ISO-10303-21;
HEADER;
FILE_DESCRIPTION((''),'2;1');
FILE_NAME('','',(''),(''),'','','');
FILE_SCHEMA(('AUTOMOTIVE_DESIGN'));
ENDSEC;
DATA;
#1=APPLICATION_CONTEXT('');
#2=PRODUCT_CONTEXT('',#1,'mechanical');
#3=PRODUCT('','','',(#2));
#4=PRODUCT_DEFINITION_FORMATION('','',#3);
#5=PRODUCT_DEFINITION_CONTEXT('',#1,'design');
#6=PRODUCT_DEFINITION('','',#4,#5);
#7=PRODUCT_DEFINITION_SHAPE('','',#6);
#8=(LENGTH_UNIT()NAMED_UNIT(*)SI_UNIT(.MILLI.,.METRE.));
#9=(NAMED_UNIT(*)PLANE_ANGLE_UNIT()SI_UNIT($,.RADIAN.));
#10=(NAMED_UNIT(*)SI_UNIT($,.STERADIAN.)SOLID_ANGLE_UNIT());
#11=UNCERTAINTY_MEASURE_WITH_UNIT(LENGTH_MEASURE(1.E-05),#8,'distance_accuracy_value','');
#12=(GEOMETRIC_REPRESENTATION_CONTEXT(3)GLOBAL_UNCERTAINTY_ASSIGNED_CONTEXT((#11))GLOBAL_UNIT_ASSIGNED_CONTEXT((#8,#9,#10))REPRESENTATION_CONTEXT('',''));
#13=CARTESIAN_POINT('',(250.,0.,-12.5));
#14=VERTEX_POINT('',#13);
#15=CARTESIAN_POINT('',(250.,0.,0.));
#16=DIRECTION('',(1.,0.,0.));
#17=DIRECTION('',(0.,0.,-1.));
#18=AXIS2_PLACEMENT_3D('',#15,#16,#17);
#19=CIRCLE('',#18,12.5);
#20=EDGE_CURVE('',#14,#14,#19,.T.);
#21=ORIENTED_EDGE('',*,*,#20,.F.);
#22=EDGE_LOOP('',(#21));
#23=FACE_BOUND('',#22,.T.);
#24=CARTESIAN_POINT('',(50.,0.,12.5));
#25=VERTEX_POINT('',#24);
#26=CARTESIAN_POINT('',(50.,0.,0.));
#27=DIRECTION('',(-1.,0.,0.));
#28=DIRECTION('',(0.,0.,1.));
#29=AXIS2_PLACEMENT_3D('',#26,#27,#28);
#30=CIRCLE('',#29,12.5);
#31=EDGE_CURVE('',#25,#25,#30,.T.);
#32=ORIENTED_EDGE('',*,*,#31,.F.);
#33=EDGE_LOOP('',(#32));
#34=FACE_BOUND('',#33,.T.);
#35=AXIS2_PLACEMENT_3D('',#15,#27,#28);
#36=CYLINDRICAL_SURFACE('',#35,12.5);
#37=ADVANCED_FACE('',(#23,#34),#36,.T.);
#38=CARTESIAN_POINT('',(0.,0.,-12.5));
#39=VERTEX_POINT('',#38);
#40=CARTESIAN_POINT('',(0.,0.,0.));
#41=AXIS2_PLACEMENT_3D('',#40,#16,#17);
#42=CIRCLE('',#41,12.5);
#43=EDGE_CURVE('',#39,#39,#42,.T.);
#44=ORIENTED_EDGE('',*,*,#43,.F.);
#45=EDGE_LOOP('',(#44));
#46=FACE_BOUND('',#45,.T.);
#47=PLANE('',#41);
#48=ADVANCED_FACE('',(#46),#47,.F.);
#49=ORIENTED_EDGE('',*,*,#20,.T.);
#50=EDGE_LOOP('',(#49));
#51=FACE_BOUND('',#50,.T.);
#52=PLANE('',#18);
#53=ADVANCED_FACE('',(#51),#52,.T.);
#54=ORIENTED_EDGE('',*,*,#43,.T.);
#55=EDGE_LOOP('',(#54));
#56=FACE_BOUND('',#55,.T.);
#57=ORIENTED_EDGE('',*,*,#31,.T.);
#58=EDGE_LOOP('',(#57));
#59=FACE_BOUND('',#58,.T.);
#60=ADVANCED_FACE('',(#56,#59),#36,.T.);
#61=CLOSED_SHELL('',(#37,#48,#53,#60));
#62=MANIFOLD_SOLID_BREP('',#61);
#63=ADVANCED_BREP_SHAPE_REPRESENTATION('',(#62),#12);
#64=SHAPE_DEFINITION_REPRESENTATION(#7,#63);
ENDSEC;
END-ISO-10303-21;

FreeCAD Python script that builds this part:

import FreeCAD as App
import Part
import Sketcher

V = App.Vector

doc = App.newDocument("Part")
params = doc.addObject("Spreadsheet::Sheet", "Params")
for row, (alias, value) in enumerate([
    ("sketch1_diameter", "25 mm"),
    ("pad1_length", "250 mm"),
], start=1):
    params.set(f"A{row}", alias)
    params.set(f"B{row}", "=" + value)
    params.setAlias(f"B{row}", alias)

body = doc.addObject("PartDesign::Body", "Body")

sketch1 = body.newObject("Sketcher::SketchObject", "Sketch")
sketch1.AttachmentSupport = (doc.getObject("YZ_Plane"), [""])
sketch1.MapMode = "FlatFace"
sketch1.addGeometry(Part.Circle(V(0, 0, 0), V(0, 0, 1), 12), False)
sketch1.addConstraint([
    Sketcher.Constraint("Coincident", 0, 3, -1, 1),
    Sketcher.Constraint("Diameter", 0, 25.0),
])
sketch1.setExpression("Constraints[1]", "Params.sketch1_diameter")
pad1 = body.newObject("PartDesign::Pad", "Pad")
pad1.Profile = sketch1
pad1.setExpression("Length", "Params.pad1_length")

doc.recompute()
